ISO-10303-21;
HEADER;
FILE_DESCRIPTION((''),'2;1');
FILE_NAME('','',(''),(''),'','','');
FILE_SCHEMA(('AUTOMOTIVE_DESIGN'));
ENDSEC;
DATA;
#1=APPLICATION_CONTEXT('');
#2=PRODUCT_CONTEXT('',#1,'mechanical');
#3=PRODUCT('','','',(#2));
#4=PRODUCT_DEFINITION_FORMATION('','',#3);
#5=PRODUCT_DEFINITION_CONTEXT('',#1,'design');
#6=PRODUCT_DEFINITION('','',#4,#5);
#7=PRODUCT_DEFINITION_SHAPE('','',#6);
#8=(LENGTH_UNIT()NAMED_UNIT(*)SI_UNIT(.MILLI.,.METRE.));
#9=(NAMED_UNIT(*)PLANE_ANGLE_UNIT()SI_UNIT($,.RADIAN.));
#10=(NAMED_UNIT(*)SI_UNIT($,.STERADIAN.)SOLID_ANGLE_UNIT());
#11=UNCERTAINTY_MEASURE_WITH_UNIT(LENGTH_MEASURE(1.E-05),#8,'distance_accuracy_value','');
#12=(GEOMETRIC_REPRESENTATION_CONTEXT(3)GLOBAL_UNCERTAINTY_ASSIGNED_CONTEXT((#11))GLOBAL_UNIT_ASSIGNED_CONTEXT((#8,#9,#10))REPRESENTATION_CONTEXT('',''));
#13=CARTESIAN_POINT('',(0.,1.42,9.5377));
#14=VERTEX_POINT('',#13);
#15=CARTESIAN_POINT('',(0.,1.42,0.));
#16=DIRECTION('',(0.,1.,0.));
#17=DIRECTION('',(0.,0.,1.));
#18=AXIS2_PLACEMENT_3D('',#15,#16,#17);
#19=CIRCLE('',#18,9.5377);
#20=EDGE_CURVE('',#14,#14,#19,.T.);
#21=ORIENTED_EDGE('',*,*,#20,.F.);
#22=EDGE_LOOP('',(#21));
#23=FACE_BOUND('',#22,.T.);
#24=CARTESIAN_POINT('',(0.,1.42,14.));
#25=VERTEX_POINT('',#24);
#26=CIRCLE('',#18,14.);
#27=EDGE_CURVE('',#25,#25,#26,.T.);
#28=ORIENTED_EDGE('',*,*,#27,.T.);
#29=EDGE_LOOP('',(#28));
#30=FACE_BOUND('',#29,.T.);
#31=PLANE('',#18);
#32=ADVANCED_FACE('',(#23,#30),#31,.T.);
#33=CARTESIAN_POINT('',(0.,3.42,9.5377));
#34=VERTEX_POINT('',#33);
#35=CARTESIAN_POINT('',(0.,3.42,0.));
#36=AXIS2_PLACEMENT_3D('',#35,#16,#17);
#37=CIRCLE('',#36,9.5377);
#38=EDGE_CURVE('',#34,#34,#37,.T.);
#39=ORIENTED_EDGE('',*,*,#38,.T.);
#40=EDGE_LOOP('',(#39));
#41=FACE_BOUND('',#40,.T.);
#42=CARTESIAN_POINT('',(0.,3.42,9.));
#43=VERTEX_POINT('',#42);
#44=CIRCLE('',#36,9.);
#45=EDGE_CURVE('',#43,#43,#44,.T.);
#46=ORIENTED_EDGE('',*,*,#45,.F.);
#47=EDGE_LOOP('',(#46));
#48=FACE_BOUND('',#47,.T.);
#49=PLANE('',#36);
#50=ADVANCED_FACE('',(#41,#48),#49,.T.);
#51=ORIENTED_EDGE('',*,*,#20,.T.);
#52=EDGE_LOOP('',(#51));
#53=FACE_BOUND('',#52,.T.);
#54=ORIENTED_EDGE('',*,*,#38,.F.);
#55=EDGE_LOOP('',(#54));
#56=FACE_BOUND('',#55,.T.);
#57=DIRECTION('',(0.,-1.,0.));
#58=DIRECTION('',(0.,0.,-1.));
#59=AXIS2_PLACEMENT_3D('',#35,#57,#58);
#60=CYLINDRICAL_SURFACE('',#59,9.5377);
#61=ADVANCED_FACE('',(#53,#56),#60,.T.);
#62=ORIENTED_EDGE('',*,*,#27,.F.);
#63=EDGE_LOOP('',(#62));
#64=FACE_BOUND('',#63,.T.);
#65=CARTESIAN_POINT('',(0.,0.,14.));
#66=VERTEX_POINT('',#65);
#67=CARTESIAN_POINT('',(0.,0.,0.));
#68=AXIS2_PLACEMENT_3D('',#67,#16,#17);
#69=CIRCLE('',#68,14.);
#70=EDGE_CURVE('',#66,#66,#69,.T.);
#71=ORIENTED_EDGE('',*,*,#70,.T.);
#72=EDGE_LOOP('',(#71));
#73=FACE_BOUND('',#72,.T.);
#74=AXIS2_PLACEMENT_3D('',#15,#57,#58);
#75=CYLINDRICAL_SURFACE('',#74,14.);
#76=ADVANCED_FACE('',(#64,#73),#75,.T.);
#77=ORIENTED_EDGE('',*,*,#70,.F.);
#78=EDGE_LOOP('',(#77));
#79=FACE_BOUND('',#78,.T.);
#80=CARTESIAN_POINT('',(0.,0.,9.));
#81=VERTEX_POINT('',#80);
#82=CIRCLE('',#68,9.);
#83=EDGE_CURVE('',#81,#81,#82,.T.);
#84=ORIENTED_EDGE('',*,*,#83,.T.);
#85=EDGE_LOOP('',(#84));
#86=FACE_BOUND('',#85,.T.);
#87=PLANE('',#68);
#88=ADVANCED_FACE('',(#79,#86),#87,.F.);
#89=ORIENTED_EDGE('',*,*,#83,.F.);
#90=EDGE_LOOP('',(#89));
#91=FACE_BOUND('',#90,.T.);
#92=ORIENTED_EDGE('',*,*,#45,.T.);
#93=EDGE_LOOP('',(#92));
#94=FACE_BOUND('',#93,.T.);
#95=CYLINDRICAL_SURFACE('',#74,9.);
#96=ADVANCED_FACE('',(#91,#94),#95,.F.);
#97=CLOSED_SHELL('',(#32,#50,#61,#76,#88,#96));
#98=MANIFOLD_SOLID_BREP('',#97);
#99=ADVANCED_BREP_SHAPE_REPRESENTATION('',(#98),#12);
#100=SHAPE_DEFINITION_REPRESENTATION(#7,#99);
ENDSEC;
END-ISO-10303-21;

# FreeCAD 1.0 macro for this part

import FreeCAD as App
import Part
import Sketcher

doc = App.newDocument("Part")
params = doc.addObject("Spreadsheet::Sheet", "Params")
for row, (alias, value) in enumerate([
    ("sketch1_diameter", "28 mm"),
    ("sketch1_diameter2", "18 mm"),
    ("pad1_length", "1.42 mm"),
    ("sketch2_diameter", "18 mm"),
    ("pad2_length", "2 mm"),
], start=1):
    params.set(f"A{row}", alias)
    params.set(f"B{row}", "=" + value)
    params.setAlias(f"B{row}", alias)

body = doc.addObject("PartDesign::Body", "Body")

# Sketch on XZ plane
sketch1 = body.newObject("Sketcher::SketchObject", "Sketch")
sketch1.AttachmentSupport = (doc.getObject("XZ_Plane"), [""])
sketch1.MapMode = "FlatFace"
sketch1.addGeometry(Part.Circle(App.Vector(0, 0, 0), App.Vector(0, 0, 1), 14), False)
sketch1.addGeometry(Part.Circle(App.Vector(0, 0, 0), App.Vector(0, 0, 1), 9), False)
sketch1.addConstraint(Sketcher.Constraint("Coincident", 0, 3, -1, 1))
sketch1.addConstraint(Sketcher.Constraint("Coincident", 1, 3, -1, 1))
sketch1.addConstraint(Sketcher.Constraint("Diameter", 0, 28.0))
sketch1.addConstraint(Sketcher.Constraint("Diameter", 1, 18.0))
sketch1.setExpression("Constraints[2]", "Params.sketch1_diameter")
sketch1.setExpression("Constraints[3]", "Params.sketch1_diameter2")
pad1 = body.newObject("PartDesign::Pad", "Pad")
pad1.Profile = sketch1
pad1.setExpression("Length", "Params.pad1_length")
pad1.Reversed = True

# Sketch on XZ plane
sketch2 = body.newObject("Sketcher::SketchObject", "Sketch001")
sketch2.AttachmentSupport = (doc.getObject("XZ_Plane"), [""])
sketch2.MapMode = "FlatFace"
sketch2.AttachmentOffset = App.Placement(App.Vector(0, 0, -1.42), App.Rotation())
sketch2.addGeometry(Part.Circle(App.Vector(0, 0, 0), App.Vector(0, 0, 1), 10), False)
sketch2.addGeometry(Part.Circle(App.Vector(0, 0, 0), App.Vector(0, 0, 1), 9), False)
sketch2.addConstraint(Sketcher.Constraint("Coincident", 0, 3, -1, 1))
sketch2.addConstraint(Sketcher.Constraint("Coincident", 1, 3, -1, 1))
sketch2.addConstraint(Sketcher.Constraint("Diameter", 1, 18.0))
sketch2.addConstraint(Sketcher.Constraint("Diameter", 0, 19.0754))
sketch2.setExpression("Constraints[2]", "Params.sketch2_diameter")
pad2 = body.newObject("PartDesign::Pad", "Pad001")
pad2.Profile = sketch2
pad2.setExpression("Length", "Params.pad2_length")
pad2.Reversed = True

doc.recompute()
